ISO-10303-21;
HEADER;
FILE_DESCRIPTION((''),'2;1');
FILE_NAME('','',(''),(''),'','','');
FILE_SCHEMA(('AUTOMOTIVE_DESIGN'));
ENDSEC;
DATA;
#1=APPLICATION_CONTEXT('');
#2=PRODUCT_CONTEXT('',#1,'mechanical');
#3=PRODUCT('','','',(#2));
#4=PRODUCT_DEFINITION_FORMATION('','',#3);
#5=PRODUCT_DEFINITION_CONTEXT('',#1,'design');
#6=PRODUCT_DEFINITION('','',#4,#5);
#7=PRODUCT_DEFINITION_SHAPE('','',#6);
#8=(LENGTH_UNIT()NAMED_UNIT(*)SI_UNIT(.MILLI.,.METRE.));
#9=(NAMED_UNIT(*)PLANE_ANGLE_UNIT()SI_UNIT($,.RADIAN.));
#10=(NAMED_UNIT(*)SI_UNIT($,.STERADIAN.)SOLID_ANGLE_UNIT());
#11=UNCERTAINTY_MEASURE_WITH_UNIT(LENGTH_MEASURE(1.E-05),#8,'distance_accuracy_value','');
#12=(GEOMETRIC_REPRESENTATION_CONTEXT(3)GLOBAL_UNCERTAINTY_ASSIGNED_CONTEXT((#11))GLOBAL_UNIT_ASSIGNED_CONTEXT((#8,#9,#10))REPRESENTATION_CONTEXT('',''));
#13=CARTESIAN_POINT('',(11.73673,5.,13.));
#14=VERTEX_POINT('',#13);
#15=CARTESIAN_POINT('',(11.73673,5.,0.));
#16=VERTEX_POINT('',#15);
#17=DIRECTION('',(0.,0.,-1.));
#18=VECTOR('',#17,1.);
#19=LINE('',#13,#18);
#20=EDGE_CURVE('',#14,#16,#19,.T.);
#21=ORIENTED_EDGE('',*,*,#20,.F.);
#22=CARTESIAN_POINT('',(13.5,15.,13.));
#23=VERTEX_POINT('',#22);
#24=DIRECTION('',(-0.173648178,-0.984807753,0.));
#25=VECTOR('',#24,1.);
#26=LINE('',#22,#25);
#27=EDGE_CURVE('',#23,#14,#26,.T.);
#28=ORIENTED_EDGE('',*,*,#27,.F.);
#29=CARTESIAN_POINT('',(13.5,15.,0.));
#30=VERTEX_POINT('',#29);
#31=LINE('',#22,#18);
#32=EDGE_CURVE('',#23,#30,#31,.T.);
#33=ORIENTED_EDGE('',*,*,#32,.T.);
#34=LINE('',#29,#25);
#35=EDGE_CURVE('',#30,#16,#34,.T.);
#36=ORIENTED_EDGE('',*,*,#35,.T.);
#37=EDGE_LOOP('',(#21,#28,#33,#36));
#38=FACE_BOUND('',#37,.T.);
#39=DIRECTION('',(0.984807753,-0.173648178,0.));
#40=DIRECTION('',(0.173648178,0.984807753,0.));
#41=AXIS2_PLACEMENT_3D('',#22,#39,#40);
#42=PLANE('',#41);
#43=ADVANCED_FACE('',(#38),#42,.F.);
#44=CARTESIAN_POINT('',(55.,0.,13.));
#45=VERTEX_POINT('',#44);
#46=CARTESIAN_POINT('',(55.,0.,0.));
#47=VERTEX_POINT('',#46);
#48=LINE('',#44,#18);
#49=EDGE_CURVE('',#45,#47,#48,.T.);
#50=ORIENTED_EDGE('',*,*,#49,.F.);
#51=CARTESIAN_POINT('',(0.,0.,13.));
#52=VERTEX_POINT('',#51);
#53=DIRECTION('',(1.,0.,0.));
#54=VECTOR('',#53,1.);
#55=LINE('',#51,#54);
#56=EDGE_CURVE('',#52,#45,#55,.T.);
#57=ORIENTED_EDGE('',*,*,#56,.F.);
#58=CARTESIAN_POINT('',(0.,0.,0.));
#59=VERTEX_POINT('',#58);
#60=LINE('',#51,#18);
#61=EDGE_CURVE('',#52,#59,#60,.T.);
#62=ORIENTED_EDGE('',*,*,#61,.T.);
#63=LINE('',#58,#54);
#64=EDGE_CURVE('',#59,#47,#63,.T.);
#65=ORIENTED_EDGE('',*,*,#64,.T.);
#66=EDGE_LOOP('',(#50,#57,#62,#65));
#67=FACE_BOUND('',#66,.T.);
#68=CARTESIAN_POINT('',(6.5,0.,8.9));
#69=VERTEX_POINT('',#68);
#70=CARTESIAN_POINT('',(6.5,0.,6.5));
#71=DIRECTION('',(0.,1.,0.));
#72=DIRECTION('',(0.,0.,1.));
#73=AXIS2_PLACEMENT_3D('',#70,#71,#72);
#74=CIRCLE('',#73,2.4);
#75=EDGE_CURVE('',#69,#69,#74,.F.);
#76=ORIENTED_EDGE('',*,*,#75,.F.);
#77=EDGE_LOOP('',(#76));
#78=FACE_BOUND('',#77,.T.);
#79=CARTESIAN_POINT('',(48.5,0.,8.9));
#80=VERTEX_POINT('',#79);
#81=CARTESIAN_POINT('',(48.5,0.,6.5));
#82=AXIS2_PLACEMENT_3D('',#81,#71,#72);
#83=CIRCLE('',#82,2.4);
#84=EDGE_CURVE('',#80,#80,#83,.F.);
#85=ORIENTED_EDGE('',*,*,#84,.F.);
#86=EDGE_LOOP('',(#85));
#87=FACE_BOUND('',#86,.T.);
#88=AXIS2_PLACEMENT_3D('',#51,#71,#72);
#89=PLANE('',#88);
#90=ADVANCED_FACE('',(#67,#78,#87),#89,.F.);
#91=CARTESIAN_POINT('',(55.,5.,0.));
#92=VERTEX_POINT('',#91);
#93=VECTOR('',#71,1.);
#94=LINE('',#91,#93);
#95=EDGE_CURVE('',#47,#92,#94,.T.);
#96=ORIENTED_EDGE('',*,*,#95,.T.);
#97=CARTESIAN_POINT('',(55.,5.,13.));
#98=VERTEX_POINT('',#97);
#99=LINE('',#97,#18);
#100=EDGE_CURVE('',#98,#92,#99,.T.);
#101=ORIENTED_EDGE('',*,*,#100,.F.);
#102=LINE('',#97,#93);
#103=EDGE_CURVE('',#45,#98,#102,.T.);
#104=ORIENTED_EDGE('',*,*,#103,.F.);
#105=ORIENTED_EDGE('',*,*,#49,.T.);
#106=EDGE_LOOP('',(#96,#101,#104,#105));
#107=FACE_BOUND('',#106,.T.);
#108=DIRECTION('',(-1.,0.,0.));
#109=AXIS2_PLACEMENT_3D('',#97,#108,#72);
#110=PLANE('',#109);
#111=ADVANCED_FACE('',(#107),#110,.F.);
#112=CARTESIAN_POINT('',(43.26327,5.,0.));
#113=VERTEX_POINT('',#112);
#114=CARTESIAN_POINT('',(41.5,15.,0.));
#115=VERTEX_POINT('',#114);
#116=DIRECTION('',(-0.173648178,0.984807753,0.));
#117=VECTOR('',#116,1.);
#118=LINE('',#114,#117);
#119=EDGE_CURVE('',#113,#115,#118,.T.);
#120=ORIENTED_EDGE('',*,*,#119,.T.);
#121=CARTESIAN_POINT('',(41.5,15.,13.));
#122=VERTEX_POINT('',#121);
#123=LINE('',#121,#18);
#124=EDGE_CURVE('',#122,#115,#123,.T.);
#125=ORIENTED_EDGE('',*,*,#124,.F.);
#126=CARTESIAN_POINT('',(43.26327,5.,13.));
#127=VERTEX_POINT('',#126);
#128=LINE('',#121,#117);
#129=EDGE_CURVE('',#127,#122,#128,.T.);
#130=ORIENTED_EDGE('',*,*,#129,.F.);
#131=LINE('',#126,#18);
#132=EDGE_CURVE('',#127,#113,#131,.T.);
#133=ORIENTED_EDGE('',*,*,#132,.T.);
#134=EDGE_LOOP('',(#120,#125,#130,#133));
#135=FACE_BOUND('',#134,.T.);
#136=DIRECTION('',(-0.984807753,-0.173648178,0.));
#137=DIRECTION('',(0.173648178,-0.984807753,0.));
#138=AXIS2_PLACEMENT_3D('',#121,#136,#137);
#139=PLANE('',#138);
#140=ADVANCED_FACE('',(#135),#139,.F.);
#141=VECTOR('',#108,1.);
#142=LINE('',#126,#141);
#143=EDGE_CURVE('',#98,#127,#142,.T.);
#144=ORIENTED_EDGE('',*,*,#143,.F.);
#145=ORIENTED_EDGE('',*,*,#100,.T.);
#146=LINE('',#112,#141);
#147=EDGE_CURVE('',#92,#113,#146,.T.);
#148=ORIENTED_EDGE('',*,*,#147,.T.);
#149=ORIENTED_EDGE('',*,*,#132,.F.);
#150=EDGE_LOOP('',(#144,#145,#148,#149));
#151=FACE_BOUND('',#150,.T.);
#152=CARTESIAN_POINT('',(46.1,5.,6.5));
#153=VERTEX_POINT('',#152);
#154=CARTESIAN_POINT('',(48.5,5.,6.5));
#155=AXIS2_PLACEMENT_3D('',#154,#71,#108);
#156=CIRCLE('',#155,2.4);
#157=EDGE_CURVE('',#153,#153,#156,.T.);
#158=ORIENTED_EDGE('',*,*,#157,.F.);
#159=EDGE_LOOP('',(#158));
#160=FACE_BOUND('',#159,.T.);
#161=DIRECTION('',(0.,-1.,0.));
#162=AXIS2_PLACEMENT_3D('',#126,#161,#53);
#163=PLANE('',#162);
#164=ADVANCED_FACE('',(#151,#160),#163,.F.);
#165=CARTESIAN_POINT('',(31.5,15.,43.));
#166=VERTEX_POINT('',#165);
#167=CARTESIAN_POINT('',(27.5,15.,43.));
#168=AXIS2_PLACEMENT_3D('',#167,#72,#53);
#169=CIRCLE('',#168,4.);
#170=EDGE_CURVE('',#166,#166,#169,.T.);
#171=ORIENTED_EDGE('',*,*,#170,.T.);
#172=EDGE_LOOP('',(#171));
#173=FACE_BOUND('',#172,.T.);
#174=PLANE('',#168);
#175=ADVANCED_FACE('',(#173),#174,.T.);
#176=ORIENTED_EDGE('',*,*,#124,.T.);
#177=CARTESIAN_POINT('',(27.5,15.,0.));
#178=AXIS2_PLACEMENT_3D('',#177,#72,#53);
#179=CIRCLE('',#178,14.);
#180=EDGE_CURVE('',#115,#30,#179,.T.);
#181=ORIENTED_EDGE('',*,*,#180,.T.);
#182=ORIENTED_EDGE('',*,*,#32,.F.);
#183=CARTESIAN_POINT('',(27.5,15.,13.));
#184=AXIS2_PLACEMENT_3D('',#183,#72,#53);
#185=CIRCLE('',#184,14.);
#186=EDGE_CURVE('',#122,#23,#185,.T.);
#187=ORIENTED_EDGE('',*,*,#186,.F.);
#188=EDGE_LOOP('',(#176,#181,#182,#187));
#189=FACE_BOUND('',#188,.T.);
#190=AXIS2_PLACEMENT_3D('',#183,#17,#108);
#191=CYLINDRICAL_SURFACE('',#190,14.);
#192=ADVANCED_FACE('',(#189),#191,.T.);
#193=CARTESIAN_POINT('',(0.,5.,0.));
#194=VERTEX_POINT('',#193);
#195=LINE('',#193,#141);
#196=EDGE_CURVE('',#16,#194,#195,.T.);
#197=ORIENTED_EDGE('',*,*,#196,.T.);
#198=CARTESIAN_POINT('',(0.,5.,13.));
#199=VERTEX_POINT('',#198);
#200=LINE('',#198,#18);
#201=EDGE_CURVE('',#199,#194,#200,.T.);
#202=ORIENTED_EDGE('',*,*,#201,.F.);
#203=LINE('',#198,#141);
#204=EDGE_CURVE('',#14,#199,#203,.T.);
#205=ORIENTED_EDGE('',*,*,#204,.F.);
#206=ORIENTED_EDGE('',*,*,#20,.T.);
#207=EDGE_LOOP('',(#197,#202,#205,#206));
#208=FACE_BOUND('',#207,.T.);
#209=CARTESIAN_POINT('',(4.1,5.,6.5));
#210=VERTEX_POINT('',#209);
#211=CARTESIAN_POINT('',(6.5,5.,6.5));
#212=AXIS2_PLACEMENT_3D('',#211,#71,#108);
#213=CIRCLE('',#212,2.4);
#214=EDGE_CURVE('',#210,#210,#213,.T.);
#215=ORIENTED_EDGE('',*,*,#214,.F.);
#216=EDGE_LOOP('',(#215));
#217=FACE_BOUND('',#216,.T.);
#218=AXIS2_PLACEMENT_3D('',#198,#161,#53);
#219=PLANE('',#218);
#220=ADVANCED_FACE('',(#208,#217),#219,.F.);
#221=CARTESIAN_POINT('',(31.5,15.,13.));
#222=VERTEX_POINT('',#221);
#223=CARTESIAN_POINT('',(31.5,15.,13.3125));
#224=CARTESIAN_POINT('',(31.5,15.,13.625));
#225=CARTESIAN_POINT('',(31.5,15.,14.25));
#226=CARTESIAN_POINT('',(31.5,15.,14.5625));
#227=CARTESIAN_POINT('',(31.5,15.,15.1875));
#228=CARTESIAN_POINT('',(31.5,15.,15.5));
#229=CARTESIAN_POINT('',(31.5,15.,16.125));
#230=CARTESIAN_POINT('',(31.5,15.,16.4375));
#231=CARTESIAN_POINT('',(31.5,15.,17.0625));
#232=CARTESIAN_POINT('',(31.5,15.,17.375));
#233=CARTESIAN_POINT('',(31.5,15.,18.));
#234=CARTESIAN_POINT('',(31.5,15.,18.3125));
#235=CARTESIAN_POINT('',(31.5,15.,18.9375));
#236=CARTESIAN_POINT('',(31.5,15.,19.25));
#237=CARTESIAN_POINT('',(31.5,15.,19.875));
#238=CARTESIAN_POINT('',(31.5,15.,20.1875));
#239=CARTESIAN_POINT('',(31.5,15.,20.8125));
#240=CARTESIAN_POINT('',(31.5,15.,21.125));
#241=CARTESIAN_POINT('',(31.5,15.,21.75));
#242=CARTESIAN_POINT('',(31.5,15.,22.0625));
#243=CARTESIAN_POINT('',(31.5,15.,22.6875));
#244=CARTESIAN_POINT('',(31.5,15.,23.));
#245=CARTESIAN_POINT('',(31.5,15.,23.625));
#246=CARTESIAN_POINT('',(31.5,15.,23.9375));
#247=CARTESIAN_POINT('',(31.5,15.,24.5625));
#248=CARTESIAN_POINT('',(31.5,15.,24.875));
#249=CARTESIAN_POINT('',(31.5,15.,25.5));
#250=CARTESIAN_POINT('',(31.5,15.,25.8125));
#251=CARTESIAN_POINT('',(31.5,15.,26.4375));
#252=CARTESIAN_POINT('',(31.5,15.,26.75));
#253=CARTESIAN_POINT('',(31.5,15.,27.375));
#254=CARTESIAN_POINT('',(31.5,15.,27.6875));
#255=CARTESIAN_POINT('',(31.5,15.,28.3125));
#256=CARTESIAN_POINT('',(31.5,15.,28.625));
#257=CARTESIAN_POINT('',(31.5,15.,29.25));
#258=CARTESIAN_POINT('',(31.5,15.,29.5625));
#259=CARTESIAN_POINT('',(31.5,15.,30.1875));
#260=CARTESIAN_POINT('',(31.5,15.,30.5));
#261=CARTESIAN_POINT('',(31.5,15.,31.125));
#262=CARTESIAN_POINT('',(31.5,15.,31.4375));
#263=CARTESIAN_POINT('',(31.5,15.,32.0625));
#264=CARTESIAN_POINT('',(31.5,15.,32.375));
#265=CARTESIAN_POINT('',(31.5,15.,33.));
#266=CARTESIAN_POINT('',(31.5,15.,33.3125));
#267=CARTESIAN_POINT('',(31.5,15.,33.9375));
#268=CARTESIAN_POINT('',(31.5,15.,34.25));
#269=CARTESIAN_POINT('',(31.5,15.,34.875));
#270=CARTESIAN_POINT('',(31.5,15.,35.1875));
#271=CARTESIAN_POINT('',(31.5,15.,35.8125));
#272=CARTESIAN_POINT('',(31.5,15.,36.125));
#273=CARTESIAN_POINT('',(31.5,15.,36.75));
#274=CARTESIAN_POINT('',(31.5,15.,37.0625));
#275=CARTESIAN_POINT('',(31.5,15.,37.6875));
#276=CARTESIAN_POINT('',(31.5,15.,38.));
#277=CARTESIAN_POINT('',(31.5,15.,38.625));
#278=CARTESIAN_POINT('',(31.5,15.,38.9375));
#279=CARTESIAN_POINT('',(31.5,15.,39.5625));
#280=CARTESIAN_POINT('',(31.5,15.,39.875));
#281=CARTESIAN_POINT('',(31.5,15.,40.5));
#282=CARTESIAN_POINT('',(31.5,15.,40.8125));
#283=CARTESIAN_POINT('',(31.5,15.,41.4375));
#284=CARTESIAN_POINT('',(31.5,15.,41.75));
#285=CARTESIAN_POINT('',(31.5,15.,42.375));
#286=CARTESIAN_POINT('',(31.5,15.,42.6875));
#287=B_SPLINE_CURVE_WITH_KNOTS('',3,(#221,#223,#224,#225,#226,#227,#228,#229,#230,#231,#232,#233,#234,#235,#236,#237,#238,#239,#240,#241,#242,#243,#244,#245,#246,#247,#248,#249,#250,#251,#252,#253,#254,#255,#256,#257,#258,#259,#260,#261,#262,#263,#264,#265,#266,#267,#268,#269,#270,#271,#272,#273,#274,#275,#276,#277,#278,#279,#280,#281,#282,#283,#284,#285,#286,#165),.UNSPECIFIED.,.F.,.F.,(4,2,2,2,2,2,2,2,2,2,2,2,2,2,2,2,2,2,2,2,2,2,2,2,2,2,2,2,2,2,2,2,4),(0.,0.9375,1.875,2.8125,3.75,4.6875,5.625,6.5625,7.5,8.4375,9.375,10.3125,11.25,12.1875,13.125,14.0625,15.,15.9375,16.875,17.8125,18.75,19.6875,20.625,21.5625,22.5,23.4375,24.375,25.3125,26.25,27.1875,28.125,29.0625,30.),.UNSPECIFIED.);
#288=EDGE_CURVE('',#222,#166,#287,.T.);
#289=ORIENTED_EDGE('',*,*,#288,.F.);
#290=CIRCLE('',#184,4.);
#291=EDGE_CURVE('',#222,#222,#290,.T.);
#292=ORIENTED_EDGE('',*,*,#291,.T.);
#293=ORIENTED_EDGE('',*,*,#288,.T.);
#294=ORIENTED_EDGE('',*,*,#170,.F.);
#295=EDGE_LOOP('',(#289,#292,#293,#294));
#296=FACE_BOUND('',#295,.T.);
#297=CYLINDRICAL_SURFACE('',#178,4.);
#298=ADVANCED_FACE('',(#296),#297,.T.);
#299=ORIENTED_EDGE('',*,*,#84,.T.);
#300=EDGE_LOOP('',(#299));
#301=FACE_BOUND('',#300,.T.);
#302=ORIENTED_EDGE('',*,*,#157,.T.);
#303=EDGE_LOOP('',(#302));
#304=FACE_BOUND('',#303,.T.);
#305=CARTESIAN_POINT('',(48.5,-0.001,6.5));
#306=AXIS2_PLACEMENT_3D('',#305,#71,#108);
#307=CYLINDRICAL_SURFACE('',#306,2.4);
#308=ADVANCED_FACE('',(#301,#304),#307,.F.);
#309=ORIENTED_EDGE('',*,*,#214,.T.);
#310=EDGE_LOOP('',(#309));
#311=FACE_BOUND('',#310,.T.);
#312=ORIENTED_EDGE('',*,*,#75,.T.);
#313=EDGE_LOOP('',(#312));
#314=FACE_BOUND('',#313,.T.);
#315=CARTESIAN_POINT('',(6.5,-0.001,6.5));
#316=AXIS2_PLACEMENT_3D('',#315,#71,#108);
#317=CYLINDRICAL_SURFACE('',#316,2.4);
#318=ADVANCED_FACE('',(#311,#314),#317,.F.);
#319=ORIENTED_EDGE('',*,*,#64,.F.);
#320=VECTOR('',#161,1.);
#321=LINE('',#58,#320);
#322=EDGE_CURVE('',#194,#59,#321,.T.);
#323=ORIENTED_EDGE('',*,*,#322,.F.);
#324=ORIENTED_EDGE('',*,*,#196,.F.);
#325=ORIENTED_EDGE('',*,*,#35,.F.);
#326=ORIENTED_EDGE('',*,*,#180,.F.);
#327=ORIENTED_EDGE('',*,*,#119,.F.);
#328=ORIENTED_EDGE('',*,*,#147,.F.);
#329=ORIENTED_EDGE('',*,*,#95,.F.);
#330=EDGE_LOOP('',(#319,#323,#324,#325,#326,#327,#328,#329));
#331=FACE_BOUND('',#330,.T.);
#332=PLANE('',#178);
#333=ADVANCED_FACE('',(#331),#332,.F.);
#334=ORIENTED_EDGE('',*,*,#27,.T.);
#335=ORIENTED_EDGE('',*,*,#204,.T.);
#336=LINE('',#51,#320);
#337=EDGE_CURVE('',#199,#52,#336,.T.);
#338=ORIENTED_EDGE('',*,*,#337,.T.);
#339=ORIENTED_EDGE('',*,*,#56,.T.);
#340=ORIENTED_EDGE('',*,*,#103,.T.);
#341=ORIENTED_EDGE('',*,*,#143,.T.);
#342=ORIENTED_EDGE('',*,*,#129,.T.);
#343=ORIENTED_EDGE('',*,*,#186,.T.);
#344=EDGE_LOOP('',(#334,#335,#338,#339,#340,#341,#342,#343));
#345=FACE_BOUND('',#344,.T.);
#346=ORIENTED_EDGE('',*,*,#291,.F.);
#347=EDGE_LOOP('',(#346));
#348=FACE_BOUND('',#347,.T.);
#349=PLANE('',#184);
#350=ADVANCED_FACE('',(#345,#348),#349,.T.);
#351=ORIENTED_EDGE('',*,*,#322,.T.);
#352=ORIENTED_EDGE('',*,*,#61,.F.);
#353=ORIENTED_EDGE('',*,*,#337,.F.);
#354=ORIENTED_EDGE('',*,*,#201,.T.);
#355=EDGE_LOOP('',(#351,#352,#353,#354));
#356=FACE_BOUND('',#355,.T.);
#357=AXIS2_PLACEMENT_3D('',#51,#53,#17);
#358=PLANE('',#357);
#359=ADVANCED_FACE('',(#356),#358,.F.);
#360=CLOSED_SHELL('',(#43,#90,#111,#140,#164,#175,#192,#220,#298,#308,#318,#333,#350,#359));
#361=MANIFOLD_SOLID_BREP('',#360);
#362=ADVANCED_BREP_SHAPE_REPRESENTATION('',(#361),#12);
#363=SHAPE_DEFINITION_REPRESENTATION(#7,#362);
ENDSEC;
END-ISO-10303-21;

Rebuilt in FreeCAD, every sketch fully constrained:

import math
import FreeCAD as App
import Part
import Sketcher

V = App.Vector
Q = App.Units.Quantity

doc = App.newDocument("Part")
params = doc.addObject("Spreadsheet::Sheet", "Params")
for row, (alias, value) in enumerate([
    ("sketch1_radius", "14 mm"),
    ("sketch1_width", "55 mm"),
    ("sketch1_height", "5 mm"),
    ("pad1_length", "13 mm"),
    ("sketch2_diameter", "8 mm"),
    ("pocket1_length", "13 mm"),
    ("sketch3_diameter", "4.8 mm"),
    ("sketch4_diameter", "4.8 mm"),
    ("sketch5_diameter", "8 mm"),
    ("pad2_length", "30 mm"),
    ("pad2_length2", "13 mm"),
], start=1):
    params.set(f"A{row}", alias)
    params.set(f"B{row}", "=" + value)
    params.setAlias(f"B{row}", alias)

body = doc.addObject("PartDesign::Body", "Body")

sketch1 = body.newObject("Sketcher::SketchObject", "Sketch")
sketch1.AttachmentSupport = (doc.getObject("XY_Plane"), [""])
sketch1.MapMode = "FlatFace"
sketch1.addGeometry([
    Part.LineSegment(V(0, 0, 0), V(55, 0, 0)),
    Part.LineSegment(V(55, 0, 0), V(55, 5, 0)),
    Part.LineSegment(V(55, 5, 0), V(43, 5, 0)),
    Part.LineSegment(V(43, 5, 0), V(42, 15, 0)),
    Part.ArcOfCircle(Part.Circle(V(28, 15, 0), V(0, 0, 1), 14), math.radians(0), math.radians(180)),
    Part.LineSegment(V(14, 15, 0), V(12, 5, 0)),
    Part.LineSegment(V(12, 5, 0), V(0, 5, 0)),
    Part.LineSegment(V(0, 5, 0), V(0, 0, 0)),
], False)
sketch1.addConstraint([
    Sketcher.Constraint("Coincident", 0, 2, 1, 1),
    Sketcher.Constraint("Coincident", 1, 2, 2, 1),
    Sketcher.Constraint("Coincident", 2, 2, 3, 1),
    Sketcher.Constraint("Coincident", 3, 2, 4, 1),
    Sketcher.Constraint("Coincident", 4, 2, 5, 1),
    Sketcher.Constraint("Coincident", 5, 2, 6, 1),
    Sketcher.Constraint("Coincident", 6, 2, 7, 1),
    Sketcher.Constraint("Coincident", 7, 2, 0, 1),
    Sketcher.Constraint("Horizontal", 0),
    Sketcher.Constraint("Vertical", 1),
    Sketcher.Constraint("Horizontal", 2),
    Sketcher.Constraint("Horizontal", 6),
    Sketcher.Constraint("Vertical", 7),
    Sketcher.Constraint("Coincident", 7, 2, -1, 1),
    Sketcher.Constraint("Horizontal", 4, 3, 3, 2),
    Sketcher.Constraint("Horizontal", 3, 2, 4, 2),
    Sketcher.Constraint("Horizontal", 2, 2, 5, 2),
    Sketcher.Constraint("Equal", 2, 6),
    Sketcher.Constraint("Equal", 3, 5),
    Sketcher.Constraint("Radius", 4, 14.0),
    Sketcher.Constraint("DistanceX", 0, 1, 0, 2, 55.0),
    Sketcher.Constraint("DistanceY", 1, 1, 1, 2, 5.0),
    Sketcher.Constraint("Angle", 3, Q("100 deg")),
    Sketcher.Constraint("DistanceY", -1, 1, 4, 3, 15.0),
])
sketch1.setExpression("Constraints[19]", "Params.sketch1_radius")
sketch1.setExpression("Constraints[20]", "Params.sketch1_width")
sketch1.setExpression("Constraints[21]", "Params.sketch1_height")
pad1 = body.newObject("PartDesign::Pad", "Pad")
pad1.Profile = sketch1
pad1.setExpression("Length", "Params.pad1_length")

sketch2 = body.newObject("Sketcher::SketchObject", "Sketch001")
sketch2.AttachmentSupport = (doc.getObject("XY_Plane"), [""])
sketch2.MapMode = "FlatFace"
sketch2.AttachmentOffset = App.Placement(V(0, 0, 13), App.Rotation())
sketch2.addGeometry(Part.Circle(V(27.5, 15, 0), V(0, 0, 1), 4), False)
sketch2.addConstraint([
    Sketcher.Constraint("Diameter", 0, 8.0),
    Sketcher.Constraint("DistanceY", -1, 1, 0, 3, 15.0),
    Sketcher.Constraint("DistanceX", -1, 1, 0, 3, 27.5),
])
sketch2.setExpression("Constraints[0]", "Params.sketch2_diameter")
pocket1 = body.newObject("PartDesign::Pocket", "Pocket")
pocket1.Profile = sketch2
pocket1.setExpression("Length", "Params.pocket1_length")

sketch3 = body.newObject("Sketcher::SketchObject", "Sketch002")
sketch3.AttachmentSupport = (doc.getObject("XZ_Plane"), [""])
sketch3.MapMode = "FlatFace"
sketch3.AttachmentOffset = App.Placement(V(0, 0, -5), App.Rotation())
sketch3.addGeometry(Part.Circle(V(6.5, 6.5, 0), V(0, 0, 1), 2.4), False)
sketch3.addConstraint([
    Sketcher.Constraint("Diameter", 0, 4.8),
    Sketcher.Constraint("DistanceX", -1, 1, 0, 3, 6.5),
    Sketcher.Constraint("DistanceY", -1, 1, 0, 3, 6.5),
])
sketch3.setExpression("Constraints[0]", "Params.sketch3_diameter")
pocket2 = body.newObject("PartDesign::Pocket", "Pocket001")
pocket2.Profile = sketch3
pocket2.Type = "UpToFirst"
pocket2.Reversed = True

sketch4 = body.newObject("Sketcher::SketchObject", "Sketch003")
sketch4.AttachmentSupport = (doc.getObject("XZ_Plane"), [""])
sketch4.MapMode = "FlatFace"
sketch4.AttachmentOffset = App.Placement(V(0, 0, -5), App.Rotation())
sketch4.addGeometry(Part.Circle(V(48.5, 6.5, 0), V(0, 0, 1), 2.4), False)
sketch4.addConstraint([
    Sketcher.Constraint("Diameter", 0, 4.8),
    Sketcher.Constraint("DistanceX", -1, 1, 0, 3, 48.5),
    Sketcher.Constraint("DistanceY", -1, 1, 0, 3, 6.5),
])
sketch4.setExpression("Constraints[0]", "Params.sketch4_diameter")
pocket3 = body.newObject("PartDesign::Pocket", "Pocket002")
pocket3.Profile = sketch4
pocket3.Type = "UpToFirst"
pocket3.Reversed = True

sketch5 = body.newObject("Sketcher::SketchObject", "Sketch004")
sketch5.AttachmentSupport = (doc.getObject("XY_Plane"), [""])
sketch5.MapMode = "FlatFace"
sketch5.AttachmentOffset = App.Placement(V(0, 0, 13), App.Rotation())
sketch5.addGeometry(Part.Circle(V(27.5, 15, 0), V(0, 0, 1), 4), False)
sketch5.addConstraint([
    Sketcher.Constraint("Diameter", 0, 8.0),
    Sketcher.Constraint("DistanceY", -1, 1, 0, 3, 15.0),
    Sketcher.Constraint("DistanceX", -1, 1, 0, 3, 27.5),
])
sketch5.setExpression("Constraints[0]", "Params.sketch5_diameter")
pad2 = body.newObject("PartDesign::Pad", "Pad001")
pad2.Profile = sketch5
pad2.Type = "TwoLengths"
pad2.setExpression("Length", "Params.pad2_length")
pad2.setExpression("Length2", "Params.pad2_length2")

doc.recompute()
